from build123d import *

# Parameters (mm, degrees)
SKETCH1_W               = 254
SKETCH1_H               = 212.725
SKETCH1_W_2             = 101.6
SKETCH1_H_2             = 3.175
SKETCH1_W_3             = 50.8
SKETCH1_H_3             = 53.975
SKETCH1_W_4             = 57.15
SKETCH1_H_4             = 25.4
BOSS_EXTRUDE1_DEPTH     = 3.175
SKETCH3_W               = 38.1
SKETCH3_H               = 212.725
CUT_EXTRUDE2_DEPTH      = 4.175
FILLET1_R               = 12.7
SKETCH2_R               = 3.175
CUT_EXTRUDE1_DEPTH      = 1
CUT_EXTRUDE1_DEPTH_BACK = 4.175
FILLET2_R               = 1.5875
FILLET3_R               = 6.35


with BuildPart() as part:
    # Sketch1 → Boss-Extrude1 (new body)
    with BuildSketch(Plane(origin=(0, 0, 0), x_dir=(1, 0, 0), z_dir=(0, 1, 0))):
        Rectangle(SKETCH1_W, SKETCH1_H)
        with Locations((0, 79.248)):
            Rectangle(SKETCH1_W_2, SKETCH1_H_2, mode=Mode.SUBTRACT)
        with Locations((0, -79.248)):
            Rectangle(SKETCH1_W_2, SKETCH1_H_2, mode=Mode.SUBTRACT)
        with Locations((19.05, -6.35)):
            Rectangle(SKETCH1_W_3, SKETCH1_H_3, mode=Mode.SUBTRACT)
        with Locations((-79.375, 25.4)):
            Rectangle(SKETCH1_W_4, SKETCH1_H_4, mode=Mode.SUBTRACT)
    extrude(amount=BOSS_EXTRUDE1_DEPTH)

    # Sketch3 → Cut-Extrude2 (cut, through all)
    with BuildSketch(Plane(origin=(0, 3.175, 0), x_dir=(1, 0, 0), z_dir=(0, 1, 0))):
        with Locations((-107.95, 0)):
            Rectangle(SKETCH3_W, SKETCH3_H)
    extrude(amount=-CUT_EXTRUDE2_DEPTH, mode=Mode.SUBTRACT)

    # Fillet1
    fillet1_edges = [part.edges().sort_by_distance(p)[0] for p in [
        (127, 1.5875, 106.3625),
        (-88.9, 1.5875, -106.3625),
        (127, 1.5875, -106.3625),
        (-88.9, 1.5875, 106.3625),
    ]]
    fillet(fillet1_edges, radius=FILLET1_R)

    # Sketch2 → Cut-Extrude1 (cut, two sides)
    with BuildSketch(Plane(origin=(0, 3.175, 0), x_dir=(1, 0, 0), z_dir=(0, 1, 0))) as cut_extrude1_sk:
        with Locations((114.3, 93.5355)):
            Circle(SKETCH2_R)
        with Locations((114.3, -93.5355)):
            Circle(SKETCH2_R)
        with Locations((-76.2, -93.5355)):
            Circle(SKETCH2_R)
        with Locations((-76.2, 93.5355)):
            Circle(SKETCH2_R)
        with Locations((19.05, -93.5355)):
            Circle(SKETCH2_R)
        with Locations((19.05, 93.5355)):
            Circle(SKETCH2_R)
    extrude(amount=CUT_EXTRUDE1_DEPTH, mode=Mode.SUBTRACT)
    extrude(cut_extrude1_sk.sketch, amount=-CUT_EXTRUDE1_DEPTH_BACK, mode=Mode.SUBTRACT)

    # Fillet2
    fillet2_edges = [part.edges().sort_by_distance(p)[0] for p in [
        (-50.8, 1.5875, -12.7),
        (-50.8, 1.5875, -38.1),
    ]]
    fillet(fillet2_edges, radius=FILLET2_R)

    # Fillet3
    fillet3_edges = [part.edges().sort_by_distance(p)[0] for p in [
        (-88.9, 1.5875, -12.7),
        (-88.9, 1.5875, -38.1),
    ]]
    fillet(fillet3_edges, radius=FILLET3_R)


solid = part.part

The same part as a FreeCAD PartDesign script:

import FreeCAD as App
import Part
import Sketcher
Q = App.Units.Quantity


def edges_at(feature, points):
    """Names of the edges that pass closest to the given points."""
    edges = feature.Shape.Edges
    near = lambda p: min(range(len(edges)), key=lambda i: edges[i].distToShape(Part.Vertex(*p))[0])
    return sorted({f"Edge{near(p) + 1}" for p in points})

doc = App.newDocument("Part")
params = doc.addObject("Spreadsheet::Sheet", "Params")
for row, (alias, value) in enumerate([
    ("sketch1_width", "10 in"),
    ("sketch1_width2", "4 in"),
    ("sketch1_width3", "2 in"),
    ("sketch1_height", "1 in"),
    ("sketch1_width4", "2.25 in"),
    ("pad1_length", "0.125 in"),
    ("sketch2_width", "1.5 in"),
    ("sketch2_height", "8.375 in"),
    ("fillet_radius", "0.5 in"),
    ("sketch3_diameter", "0.25 in"),
    ("fillet2_radius", "0.0625 in"),
    ("fillet3_radius", "0.25 in"),
], start=1):
    params.set(f"A{row}", alias)
    params.set(f"B{row}", "=" + value)
    params.setAlias(f"B{row}", alias)

body = doc.addObject("PartDesign::Body", "Body")

# Sketch on XZ plane
sketch1 = doc.addObject("Sketcher::SketchObject", "Sketch")
body.addObject(sketch1)
sketch1.AttachmentSupport = (doc.XZ_Plane, [""])
sketch1.MapMode = "FlatFace"
sketch1.addGeometry(Part.LineSegment(App.Vector(-127, -106.4, 0), App.Vector(-127, 106.4, 0)), False)
sketch1.addGeometry(Part.LineSegment(App.Vector(-127, 106.4, 0), App.Vector(127, 106.4, 0)), False)
sketch1.addGeometry(Part.LineSegment(App.Vector(127, 106.4, 0), App.Vector(127, -106.4, 0)), False)
sketch1.addGeometry(Part.LineSegment(App.Vector(127, -106.4, 0), App.Vector(-127, -106.4, 0)), False)
sketch1.addGeometry(Part.LineSegment(App.Vector(50.8, 80.8, 0), App.Vector(-50.8, 80.8, 0)), False)
sketch1.addGeometry(Part.LineSegment(App.Vector(-50.8, 80.8, 0), App.Vector(-50.8, 77.7, 0)), False)
sketch1.addGeometry(Part.LineSegment(App.Vector(-50.8, 77.7, 0), App.Vector(50.8, 77.7, 0)), False)
sketch1.addGeometry(Part.LineSegment(App.Vector(50.8, 77.7, 0), App.Vector(50.8, 80.8, 0)), False)
sketch1.addGeometry(Part.LineSegment(App.Vector(44.5, 33.3, 0), App.Vector(-6.3, 33.3, 0)), False)
sketch1.addGeometry(Part.LineSegment(App.Vector(-6.3, 33.3, 0), App.Vector(-6.3, -20.6, 0)), False)
sketch1.addGeometry(Part.LineSegment(App.Vector(-6.3, -20.6, 0), App.Vector(44.5, -20.6, 0)), False)
sketch1.addGeometry(Part.LineSegment(App.Vector(44.5, -20.6, 0), App.Vector(44.5, 33.3, 0)), False)
sketch1.addGeometry(Part.LineSegment(App.Vector(-50.8, -12.7, 0), App.Vector(-108, -12.7, 0)), False)
sketch1.addGeometry(Part.LineSegment(App.Vector(-108, -12.7, 0), App.Vector(-108, -38.1, 0)), False)
sketch1.addGeometry(Part.LineSegment(App.Vector(-108, -38.1, 0), App.Vector(-50.8, -38.1, 0)), False)
sketch1.addGeometry(Part.LineSegment(App.Vector(-50.8, -38.1, 0), App.Vector(-50.8, -12.7, 0)), False)
sketch1.addGeometry(Part.LineSegment(App.Vector(50.8, -77.7, 0), App.Vector(-50.8, -77.7, 0)), False)
sketch1.addGeometry(Part.LineSegment(App.Vector(-50.8, -77.7, 0), App.Vector(-50.8, -80.8, 0)), False)
sketch1.addGeometry(Part.LineSegment(App.Vector(-50.8, -80.8, 0), App.Vector(50.8, -80.8, 0)), False)
sketch1.addGeometry(Part.LineSegment(App.Vector(50.8, -80.8, 0), App.Vector(50.8, -77.7, 0)), False)
sketch1.addConstraint(Sketcher.Constraint("Coincident", 0, 2, 1, 1))
sketch1.addConstraint(Sketcher.Constraint("Coincident", 1, 2, 2, 1))
sketch1.addConstraint(Sketcher.Constraint("Coincident", 2, 2, 3, 1))
sketch1.addConstraint(Sketcher.Constraint("Coincident", 3, 2, 0, 1))
sketch1.addConstraint(Sketcher.Constraint("Coincident", 4, 2, 5, 1))
sketch1.addConstraint(Sketcher.Constraint("Coincident", 5, 2, 6, 1))
sketch1.addConstraint(Sketcher.Constraint("Coincident", 6, 2, 7, 1))
sketch1.addConstraint(Sketcher.Constraint("Coincident", 7, 2, 4, 1))
sketch1.addConstraint(Sketcher.Constraint("Coincident", 8, 2, 9, 1))
sketch1.addConstraint(Sketcher.Constraint("Coincident", 9, 2, 10, 1))
sketch1.addConstraint(Sketcher.Constraint("Coincident", 10, 2, 11, 1))
sketch1.addConstraint(Sketcher.Constraint("Coincident", 11, 2, 8, 1))
sketch1.addConstraint(Sketcher.Constraint("Coincident", 12, 2, 13, 1))
sketch1.addConstraint(Sketcher.Constraint("Coincident", 13, 2, 14, 1))
sketch1.addConstraint(Sketcher.Constraint("Coincident", 14, 2, 15, 1))
sketch1.addConstraint(Sketcher.Constraint("Coincident", 15, 2, 12, 1))
sketch1.addConstraint(Sketcher.Constraint("Coincident", 16, 2, 17, 1))
sketch1.addConstraint(Sketcher.Constraint("Coincident", 17, 2, 18, 1))
sketch1.addConstraint(Sketcher.Constraint("Coincident", 18, 2, 19, 1))
sketch1.addConstraint(Sketcher.Constraint("Coincident", 19, 2, 16, 1))
sketch1.addConstraint(Sketcher.Constraint("Vertical", 0))
sketch1.addConstraint(Sketcher.Constraint("Horizontal", 1))
sketch1.addConstraint(Sketcher.Constraint("Vertical", 2))
sketch1.addConstraint(Sketcher.Constraint("Horizontal", 3))
sketch1.addConstraint(Sketcher.Constraint("Horizontal", 4))
sketch1.addConstraint(Sketcher.Constraint("Vertical", 5))
sketch1.addConstraint(Sketcher.Constraint("Horizontal", 6))
sketch1.addConstraint(Sketcher.Constraint("Vertical", 7))
sketch1.addConstraint(Sketcher.Constraint("Horizontal", 8))
sketch1.addConstraint(Sketcher.Constraint("Vertical", 9))
sketch1.addConstraint(Sketcher.Constraint("Horizontal", 10))
sketch1.addConstraint(Sketcher.Constraint("Vertical", 11))
sketch1.addConstraint(Sketcher.Constraint("Horizontal", 12))
sketch1.addConstraint(Sketcher.Constraint("Vertical", 13))
sketch1.addConstraint(Sketcher.Constraint("Horizontal", 14))
sketch1.addConstraint(Sketcher.Constraint("Vertical", 15))
sketch1.addConstraint(Sketcher.Constraint("Horizontal", 16))
sketch1.addConstraint(Sketcher.Constraint("Vertical", 17))
sketch1.addConstraint(Sketcher.Constraint("Horizontal", 18))
sketch1.addConstraint(Sketcher.Constraint("Vertical", 19))
sketch1.addConstraint(Sketcher.Constraint("Symmetric", 0, 2, 2, 2, -1, 1))
sketch1.addConstraint(Sketcher.Constraint("Symmetric", 6, 2, 16, 2, -1, 1))
sketch1.addConstraint(Sketcher.Constraint("Symmetric", 4, 2, 18, 2, -1, 1))
sketch1.addConstraint(Sketcher.Constraint("Vertical", 5, 2, 14, 2))
sketch1.addConstraint(Sketcher.Constraint("Vertical", 15, 2, 16, 2))
sketch1.addConstraint(Sketcher.Constraint("DistanceX", 1, 1, 1, 2, Q("10 in")))
sketch1.addConstraint(Sketcher.Constraint("DistanceX", 4, 2, 4, 1, Q("4 in")))
sketch1.addConstraint(Sketcher.Constraint("DistanceX", 8, 2, 8, 1, Q("2 in")))
sketch1.addConstraint(Sketcher.Constraint("DistanceY", 13, 2, 13, 1, Q("1 in")))
sketch1.addConstraint(Sketcher.Constraint("DistanceX", 12, 2, 9, 2, Q("4 in")))
sketch1.addConstraint(Sketcher.Constraint("DistanceX", 12, 2, 12, 1, Q("2.25 in")))
sketch1.addConstraint(Sketcher.Constraint("DistanceY", 12, 2, -1, 1, Q("0.5 in")))
sketch1.addConstraint(Sketcher.Constraint("DistanceY", 0, 1, 0, 2, Q("8.375 in")))
sketch1.addConstraint(Sketcher.Constraint("DistanceY", 5, 2, 5, 1, Q("0.125 in")))
sketch1.addConstraint(Sketcher.Constraint("DistanceY", 9, 2, 9, 1, Q("2.125 in")))
sketch1.addConstraint(Sketcher.Constraint("DistanceY", 3, 2, 4, 2, Q("7.37 in")))
sketch1.addConstraint(Sketcher.Constraint("DistanceY", 8, 2, 4, 2, Q("1.87 in")))
sketch1.setExpression("Constraints[45]", "Params.sketch1_width")
sketch1.setExpression("Constraints[46]", "Params.sketch1_width2")
sketch1.setExpression("Constraints[47]", "Params.sketch1_width3")
sketch1.setExpression("Constraints[48]", "Params.sketch1_height")
sketch1.setExpression("Constraints[50]", "Params.sketch1_width4")
pad1 = doc.addObject("PartDesign::Pad", "Pad")
body.addObject(pad1)
pad1.Profile = sketch1
pad1.setExpression("Length", "Params.pad1_length")
pad1.Reversed = True

# Sketch on XZ plane
sketch2 = doc.addObject("Sketcher::SketchObject", "Sketch001")
body.addObject(sketch2)
sketch2.AttachmentSupport = (doc.XZ_Plane, [""])
sketch2.MapMode = "FlatFace"
sketch2.AttachmentOffset = App.Placement(App.Vector(0, 0, -0.125 * 25.4), App.Rotation())
sketch2.addGeometry(Part.LineSegment(App.Vector(-127, -106, 0), App.Vector(-127, 106, 0)), False)
sketch2.addGeometry(Part.LineSegment(App.Vector(-127, 106, 0), App.Vector(-89, 106, 0)), False)
sketch2.addGeometry(Part.LineSegment(App.Vector(-89, 106, 0), App.Vector(-89, -106, 0)), False)
sketch2.addGeometry(Part.LineSegment(App.Vector(-89, -106, 0), App.Vector(-127, -106, 0)), False)
sketch2.addConstraint(Sketcher.Constraint("Coincident", 0, 2, 1, 1))
sketch2.addConstraint(Sketcher.Constraint("Coincident", 1, 2, 2, 1))
sketch2.addConstraint(Sketcher.Constraint("Coincident", 2, 2, 3, 1))
sketch2.addConstraint(Sketcher.Constraint("Coincident", 3, 2, 0, 1))
sketch2.addConstraint(Sketcher.Constraint("Vertical", 0))
sketch2.addConstraint(Sketcher.Constraint("Horizontal", 1))
sketch2.addConstraint(Sketcher.Constraint("Vertical", 2))
sketch2.addConstraint(Sketcher.Constraint("Horizontal", 3))
sketch2.addConstraint(Sketcher.Constraint("DistanceX", 1, 1, 1, 2, Q("1.5 in")))
sketch2.addConstraint(Sketcher.Constraint("DistanceX", 0, 2, -1, 1, Q("5 in")))
sketch2.addConstraint(Sketcher.Constraint("DistanceY", 0, 1, 0, 2, Q("8.375 in")))
sketch2.addConstraint(Sketcher.Constraint("DistanceY", -1, 1, 0, 2, Q("4.1875 in")))
sketch2.setExpression("Constraints[8]", "Params.sketch2_width")
sketch2.setExpression("Constraints[10]", "Params.sketch2_height")
pocket1 = doc.addObject("PartDesign::Pocket", "Pocket")
body.addObject(pocket1)
pocket1.Profile = sketch2
pocket1.Type = "ThroughAll"
pocket1.Reversed = True
doc.recompute()

fillet = doc.addObject("PartDesign::Fillet", "Fillet")
body.addObject(fillet)
fillet.Base = (pocket1, edges_at(pocket1, [
    (127, 1.587, 106.362),
    (-88.9, 1.587, -106.362),
    (127, 1.587, -106.362),
    (-88.9, 1.587, 106.362),
]))
fillet.setExpression("Radius", "Params.fillet_radius")

# Sketch on XZ plane
sketch3 = doc.addObject("Sketcher::SketchObject", "Sketch002")
body.addObject(sketch3)
sketch3.AttachmentSupport = (doc.XZ_Plane, [""])
sketch3.MapMode = "FlatFace"
sketch3.AttachmentOffset = App.Placement(App.Vector(0, 0, -0.125 * 25.4), App.Rotation())
sketch3.addGeometry(Part.Circle(App.Vector(114.3, -93.5, 0), App.Vector(0, 0, 1), 3.2), False)
sketch3.addGeometry(Part.Circle(App.Vector(114.3, 93.5, 0), App.Vector(0, 0, 1), 3.2), False)
sketch3.addGeometry(Part.Circle(App.Vector(-76.2, 93.5, 0), App.Vector(0, 0, 1), 3.2), False)
sketch3.addGeometry(Part.Circle(App.Vector(-76.2, -93.5, 0), App.Vector(0, 0, 1), 3.2), False)
sketch3.addGeometry(Part.Circle(App.Vector(19.1, 93.5, 0), App.Vector(0, 0, 1), 3.2), False)
sketch3.addGeometry(Part.Circle(App.Vector(19.1, -93.5, 0), App.Vector(0, 0, 1), 3.2), False)
sketch3.addConstraint(Sketcher.Constraint("Equal", 0, 1))
sketch3.addConstraint(Sketcher.Constraint("Equal", 1, 2))
sketch3.addConstraint(Sketcher.Constraint("Equal", 2, 3))
sketch3.addConstraint(Sketcher.Constraint("Equal", 3, 4))
sketch3.addConstraint(Sketcher.Constraint("Equal", 4, 5))
sketch3.addConstraint(Sketcher.Constraint("Symmetric", 0, 3, 1, 3, -1))
sketch3.addConstraint(Sketcher.Constraint("Symmetric", 2, 3, 3, 3, -1))
sketch3.addConstraint(Sketcher.Constraint("Symmetric", 4, 3, 5, 3, -1))
sketch3.addConstraint(Sketcher.Constraint("Horizontal", 1, 3, 2, 3))
sketch3.addConstraint(Sketcher.Constraint("Horizontal", 2, 3, 4, 3))
sketch3.addConstraint(Sketcher.Constraint("Diameter", 0, Q("0.25 in")))
sketch3.addConstraint(Sketcher.Constraint("DistanceX", 2, 3, -1, 1, Q("3 in")))
sketch3.addConstraint(Sketcher.Constraint("DistanceX", -1, 1, 0, 3, Q("4.5 in")))
sketch3.addConstraint(Sketcher.Constraint("DistanceX", -1, 1, 4, 3, Q("0.75 in")))
sketch3.addConstraint(Sketcher.Constraint("DistanceY", 0, 3, 1, 3, Q("7.365 in")))
sketch3.setExpression("Constraints[10]", "Params.sketch3_diameter")
pocket2 = doc.addObject("PartDesign::Pocket", "Pocket001")
body.addObject(pocket2)
pocket2.Profile = sketch3
pocket2.Type = "ThroughAll"
pocket2.Midplane = True
doc.recompute()

fillet2 = doc.addObject("PartDesign::Fillet", "Fillet001")
body.addObject(fillet2)
fillet2.Base = (pocket2, edges_at(pocket2, [(-50.8, 1.587, -12.7), (-50.8, 1.587, -38.1)]))
fillet2.setExpression("Radius", "Params.fillet2_radius")
doc.recompute()

fillet3 = doc.addObject("PartDesign::Fillet", "Fillet002")
body.addObject(fillet3)
fillet3.Base = (fillet2, edges_at(fillet2, [(-88.9, 1.587, -12.7), (-88.9, 1.587, -38.1)]))
fillet3.setExpression("Radius", "Params.fillet3_radius")

doc.recompute()
